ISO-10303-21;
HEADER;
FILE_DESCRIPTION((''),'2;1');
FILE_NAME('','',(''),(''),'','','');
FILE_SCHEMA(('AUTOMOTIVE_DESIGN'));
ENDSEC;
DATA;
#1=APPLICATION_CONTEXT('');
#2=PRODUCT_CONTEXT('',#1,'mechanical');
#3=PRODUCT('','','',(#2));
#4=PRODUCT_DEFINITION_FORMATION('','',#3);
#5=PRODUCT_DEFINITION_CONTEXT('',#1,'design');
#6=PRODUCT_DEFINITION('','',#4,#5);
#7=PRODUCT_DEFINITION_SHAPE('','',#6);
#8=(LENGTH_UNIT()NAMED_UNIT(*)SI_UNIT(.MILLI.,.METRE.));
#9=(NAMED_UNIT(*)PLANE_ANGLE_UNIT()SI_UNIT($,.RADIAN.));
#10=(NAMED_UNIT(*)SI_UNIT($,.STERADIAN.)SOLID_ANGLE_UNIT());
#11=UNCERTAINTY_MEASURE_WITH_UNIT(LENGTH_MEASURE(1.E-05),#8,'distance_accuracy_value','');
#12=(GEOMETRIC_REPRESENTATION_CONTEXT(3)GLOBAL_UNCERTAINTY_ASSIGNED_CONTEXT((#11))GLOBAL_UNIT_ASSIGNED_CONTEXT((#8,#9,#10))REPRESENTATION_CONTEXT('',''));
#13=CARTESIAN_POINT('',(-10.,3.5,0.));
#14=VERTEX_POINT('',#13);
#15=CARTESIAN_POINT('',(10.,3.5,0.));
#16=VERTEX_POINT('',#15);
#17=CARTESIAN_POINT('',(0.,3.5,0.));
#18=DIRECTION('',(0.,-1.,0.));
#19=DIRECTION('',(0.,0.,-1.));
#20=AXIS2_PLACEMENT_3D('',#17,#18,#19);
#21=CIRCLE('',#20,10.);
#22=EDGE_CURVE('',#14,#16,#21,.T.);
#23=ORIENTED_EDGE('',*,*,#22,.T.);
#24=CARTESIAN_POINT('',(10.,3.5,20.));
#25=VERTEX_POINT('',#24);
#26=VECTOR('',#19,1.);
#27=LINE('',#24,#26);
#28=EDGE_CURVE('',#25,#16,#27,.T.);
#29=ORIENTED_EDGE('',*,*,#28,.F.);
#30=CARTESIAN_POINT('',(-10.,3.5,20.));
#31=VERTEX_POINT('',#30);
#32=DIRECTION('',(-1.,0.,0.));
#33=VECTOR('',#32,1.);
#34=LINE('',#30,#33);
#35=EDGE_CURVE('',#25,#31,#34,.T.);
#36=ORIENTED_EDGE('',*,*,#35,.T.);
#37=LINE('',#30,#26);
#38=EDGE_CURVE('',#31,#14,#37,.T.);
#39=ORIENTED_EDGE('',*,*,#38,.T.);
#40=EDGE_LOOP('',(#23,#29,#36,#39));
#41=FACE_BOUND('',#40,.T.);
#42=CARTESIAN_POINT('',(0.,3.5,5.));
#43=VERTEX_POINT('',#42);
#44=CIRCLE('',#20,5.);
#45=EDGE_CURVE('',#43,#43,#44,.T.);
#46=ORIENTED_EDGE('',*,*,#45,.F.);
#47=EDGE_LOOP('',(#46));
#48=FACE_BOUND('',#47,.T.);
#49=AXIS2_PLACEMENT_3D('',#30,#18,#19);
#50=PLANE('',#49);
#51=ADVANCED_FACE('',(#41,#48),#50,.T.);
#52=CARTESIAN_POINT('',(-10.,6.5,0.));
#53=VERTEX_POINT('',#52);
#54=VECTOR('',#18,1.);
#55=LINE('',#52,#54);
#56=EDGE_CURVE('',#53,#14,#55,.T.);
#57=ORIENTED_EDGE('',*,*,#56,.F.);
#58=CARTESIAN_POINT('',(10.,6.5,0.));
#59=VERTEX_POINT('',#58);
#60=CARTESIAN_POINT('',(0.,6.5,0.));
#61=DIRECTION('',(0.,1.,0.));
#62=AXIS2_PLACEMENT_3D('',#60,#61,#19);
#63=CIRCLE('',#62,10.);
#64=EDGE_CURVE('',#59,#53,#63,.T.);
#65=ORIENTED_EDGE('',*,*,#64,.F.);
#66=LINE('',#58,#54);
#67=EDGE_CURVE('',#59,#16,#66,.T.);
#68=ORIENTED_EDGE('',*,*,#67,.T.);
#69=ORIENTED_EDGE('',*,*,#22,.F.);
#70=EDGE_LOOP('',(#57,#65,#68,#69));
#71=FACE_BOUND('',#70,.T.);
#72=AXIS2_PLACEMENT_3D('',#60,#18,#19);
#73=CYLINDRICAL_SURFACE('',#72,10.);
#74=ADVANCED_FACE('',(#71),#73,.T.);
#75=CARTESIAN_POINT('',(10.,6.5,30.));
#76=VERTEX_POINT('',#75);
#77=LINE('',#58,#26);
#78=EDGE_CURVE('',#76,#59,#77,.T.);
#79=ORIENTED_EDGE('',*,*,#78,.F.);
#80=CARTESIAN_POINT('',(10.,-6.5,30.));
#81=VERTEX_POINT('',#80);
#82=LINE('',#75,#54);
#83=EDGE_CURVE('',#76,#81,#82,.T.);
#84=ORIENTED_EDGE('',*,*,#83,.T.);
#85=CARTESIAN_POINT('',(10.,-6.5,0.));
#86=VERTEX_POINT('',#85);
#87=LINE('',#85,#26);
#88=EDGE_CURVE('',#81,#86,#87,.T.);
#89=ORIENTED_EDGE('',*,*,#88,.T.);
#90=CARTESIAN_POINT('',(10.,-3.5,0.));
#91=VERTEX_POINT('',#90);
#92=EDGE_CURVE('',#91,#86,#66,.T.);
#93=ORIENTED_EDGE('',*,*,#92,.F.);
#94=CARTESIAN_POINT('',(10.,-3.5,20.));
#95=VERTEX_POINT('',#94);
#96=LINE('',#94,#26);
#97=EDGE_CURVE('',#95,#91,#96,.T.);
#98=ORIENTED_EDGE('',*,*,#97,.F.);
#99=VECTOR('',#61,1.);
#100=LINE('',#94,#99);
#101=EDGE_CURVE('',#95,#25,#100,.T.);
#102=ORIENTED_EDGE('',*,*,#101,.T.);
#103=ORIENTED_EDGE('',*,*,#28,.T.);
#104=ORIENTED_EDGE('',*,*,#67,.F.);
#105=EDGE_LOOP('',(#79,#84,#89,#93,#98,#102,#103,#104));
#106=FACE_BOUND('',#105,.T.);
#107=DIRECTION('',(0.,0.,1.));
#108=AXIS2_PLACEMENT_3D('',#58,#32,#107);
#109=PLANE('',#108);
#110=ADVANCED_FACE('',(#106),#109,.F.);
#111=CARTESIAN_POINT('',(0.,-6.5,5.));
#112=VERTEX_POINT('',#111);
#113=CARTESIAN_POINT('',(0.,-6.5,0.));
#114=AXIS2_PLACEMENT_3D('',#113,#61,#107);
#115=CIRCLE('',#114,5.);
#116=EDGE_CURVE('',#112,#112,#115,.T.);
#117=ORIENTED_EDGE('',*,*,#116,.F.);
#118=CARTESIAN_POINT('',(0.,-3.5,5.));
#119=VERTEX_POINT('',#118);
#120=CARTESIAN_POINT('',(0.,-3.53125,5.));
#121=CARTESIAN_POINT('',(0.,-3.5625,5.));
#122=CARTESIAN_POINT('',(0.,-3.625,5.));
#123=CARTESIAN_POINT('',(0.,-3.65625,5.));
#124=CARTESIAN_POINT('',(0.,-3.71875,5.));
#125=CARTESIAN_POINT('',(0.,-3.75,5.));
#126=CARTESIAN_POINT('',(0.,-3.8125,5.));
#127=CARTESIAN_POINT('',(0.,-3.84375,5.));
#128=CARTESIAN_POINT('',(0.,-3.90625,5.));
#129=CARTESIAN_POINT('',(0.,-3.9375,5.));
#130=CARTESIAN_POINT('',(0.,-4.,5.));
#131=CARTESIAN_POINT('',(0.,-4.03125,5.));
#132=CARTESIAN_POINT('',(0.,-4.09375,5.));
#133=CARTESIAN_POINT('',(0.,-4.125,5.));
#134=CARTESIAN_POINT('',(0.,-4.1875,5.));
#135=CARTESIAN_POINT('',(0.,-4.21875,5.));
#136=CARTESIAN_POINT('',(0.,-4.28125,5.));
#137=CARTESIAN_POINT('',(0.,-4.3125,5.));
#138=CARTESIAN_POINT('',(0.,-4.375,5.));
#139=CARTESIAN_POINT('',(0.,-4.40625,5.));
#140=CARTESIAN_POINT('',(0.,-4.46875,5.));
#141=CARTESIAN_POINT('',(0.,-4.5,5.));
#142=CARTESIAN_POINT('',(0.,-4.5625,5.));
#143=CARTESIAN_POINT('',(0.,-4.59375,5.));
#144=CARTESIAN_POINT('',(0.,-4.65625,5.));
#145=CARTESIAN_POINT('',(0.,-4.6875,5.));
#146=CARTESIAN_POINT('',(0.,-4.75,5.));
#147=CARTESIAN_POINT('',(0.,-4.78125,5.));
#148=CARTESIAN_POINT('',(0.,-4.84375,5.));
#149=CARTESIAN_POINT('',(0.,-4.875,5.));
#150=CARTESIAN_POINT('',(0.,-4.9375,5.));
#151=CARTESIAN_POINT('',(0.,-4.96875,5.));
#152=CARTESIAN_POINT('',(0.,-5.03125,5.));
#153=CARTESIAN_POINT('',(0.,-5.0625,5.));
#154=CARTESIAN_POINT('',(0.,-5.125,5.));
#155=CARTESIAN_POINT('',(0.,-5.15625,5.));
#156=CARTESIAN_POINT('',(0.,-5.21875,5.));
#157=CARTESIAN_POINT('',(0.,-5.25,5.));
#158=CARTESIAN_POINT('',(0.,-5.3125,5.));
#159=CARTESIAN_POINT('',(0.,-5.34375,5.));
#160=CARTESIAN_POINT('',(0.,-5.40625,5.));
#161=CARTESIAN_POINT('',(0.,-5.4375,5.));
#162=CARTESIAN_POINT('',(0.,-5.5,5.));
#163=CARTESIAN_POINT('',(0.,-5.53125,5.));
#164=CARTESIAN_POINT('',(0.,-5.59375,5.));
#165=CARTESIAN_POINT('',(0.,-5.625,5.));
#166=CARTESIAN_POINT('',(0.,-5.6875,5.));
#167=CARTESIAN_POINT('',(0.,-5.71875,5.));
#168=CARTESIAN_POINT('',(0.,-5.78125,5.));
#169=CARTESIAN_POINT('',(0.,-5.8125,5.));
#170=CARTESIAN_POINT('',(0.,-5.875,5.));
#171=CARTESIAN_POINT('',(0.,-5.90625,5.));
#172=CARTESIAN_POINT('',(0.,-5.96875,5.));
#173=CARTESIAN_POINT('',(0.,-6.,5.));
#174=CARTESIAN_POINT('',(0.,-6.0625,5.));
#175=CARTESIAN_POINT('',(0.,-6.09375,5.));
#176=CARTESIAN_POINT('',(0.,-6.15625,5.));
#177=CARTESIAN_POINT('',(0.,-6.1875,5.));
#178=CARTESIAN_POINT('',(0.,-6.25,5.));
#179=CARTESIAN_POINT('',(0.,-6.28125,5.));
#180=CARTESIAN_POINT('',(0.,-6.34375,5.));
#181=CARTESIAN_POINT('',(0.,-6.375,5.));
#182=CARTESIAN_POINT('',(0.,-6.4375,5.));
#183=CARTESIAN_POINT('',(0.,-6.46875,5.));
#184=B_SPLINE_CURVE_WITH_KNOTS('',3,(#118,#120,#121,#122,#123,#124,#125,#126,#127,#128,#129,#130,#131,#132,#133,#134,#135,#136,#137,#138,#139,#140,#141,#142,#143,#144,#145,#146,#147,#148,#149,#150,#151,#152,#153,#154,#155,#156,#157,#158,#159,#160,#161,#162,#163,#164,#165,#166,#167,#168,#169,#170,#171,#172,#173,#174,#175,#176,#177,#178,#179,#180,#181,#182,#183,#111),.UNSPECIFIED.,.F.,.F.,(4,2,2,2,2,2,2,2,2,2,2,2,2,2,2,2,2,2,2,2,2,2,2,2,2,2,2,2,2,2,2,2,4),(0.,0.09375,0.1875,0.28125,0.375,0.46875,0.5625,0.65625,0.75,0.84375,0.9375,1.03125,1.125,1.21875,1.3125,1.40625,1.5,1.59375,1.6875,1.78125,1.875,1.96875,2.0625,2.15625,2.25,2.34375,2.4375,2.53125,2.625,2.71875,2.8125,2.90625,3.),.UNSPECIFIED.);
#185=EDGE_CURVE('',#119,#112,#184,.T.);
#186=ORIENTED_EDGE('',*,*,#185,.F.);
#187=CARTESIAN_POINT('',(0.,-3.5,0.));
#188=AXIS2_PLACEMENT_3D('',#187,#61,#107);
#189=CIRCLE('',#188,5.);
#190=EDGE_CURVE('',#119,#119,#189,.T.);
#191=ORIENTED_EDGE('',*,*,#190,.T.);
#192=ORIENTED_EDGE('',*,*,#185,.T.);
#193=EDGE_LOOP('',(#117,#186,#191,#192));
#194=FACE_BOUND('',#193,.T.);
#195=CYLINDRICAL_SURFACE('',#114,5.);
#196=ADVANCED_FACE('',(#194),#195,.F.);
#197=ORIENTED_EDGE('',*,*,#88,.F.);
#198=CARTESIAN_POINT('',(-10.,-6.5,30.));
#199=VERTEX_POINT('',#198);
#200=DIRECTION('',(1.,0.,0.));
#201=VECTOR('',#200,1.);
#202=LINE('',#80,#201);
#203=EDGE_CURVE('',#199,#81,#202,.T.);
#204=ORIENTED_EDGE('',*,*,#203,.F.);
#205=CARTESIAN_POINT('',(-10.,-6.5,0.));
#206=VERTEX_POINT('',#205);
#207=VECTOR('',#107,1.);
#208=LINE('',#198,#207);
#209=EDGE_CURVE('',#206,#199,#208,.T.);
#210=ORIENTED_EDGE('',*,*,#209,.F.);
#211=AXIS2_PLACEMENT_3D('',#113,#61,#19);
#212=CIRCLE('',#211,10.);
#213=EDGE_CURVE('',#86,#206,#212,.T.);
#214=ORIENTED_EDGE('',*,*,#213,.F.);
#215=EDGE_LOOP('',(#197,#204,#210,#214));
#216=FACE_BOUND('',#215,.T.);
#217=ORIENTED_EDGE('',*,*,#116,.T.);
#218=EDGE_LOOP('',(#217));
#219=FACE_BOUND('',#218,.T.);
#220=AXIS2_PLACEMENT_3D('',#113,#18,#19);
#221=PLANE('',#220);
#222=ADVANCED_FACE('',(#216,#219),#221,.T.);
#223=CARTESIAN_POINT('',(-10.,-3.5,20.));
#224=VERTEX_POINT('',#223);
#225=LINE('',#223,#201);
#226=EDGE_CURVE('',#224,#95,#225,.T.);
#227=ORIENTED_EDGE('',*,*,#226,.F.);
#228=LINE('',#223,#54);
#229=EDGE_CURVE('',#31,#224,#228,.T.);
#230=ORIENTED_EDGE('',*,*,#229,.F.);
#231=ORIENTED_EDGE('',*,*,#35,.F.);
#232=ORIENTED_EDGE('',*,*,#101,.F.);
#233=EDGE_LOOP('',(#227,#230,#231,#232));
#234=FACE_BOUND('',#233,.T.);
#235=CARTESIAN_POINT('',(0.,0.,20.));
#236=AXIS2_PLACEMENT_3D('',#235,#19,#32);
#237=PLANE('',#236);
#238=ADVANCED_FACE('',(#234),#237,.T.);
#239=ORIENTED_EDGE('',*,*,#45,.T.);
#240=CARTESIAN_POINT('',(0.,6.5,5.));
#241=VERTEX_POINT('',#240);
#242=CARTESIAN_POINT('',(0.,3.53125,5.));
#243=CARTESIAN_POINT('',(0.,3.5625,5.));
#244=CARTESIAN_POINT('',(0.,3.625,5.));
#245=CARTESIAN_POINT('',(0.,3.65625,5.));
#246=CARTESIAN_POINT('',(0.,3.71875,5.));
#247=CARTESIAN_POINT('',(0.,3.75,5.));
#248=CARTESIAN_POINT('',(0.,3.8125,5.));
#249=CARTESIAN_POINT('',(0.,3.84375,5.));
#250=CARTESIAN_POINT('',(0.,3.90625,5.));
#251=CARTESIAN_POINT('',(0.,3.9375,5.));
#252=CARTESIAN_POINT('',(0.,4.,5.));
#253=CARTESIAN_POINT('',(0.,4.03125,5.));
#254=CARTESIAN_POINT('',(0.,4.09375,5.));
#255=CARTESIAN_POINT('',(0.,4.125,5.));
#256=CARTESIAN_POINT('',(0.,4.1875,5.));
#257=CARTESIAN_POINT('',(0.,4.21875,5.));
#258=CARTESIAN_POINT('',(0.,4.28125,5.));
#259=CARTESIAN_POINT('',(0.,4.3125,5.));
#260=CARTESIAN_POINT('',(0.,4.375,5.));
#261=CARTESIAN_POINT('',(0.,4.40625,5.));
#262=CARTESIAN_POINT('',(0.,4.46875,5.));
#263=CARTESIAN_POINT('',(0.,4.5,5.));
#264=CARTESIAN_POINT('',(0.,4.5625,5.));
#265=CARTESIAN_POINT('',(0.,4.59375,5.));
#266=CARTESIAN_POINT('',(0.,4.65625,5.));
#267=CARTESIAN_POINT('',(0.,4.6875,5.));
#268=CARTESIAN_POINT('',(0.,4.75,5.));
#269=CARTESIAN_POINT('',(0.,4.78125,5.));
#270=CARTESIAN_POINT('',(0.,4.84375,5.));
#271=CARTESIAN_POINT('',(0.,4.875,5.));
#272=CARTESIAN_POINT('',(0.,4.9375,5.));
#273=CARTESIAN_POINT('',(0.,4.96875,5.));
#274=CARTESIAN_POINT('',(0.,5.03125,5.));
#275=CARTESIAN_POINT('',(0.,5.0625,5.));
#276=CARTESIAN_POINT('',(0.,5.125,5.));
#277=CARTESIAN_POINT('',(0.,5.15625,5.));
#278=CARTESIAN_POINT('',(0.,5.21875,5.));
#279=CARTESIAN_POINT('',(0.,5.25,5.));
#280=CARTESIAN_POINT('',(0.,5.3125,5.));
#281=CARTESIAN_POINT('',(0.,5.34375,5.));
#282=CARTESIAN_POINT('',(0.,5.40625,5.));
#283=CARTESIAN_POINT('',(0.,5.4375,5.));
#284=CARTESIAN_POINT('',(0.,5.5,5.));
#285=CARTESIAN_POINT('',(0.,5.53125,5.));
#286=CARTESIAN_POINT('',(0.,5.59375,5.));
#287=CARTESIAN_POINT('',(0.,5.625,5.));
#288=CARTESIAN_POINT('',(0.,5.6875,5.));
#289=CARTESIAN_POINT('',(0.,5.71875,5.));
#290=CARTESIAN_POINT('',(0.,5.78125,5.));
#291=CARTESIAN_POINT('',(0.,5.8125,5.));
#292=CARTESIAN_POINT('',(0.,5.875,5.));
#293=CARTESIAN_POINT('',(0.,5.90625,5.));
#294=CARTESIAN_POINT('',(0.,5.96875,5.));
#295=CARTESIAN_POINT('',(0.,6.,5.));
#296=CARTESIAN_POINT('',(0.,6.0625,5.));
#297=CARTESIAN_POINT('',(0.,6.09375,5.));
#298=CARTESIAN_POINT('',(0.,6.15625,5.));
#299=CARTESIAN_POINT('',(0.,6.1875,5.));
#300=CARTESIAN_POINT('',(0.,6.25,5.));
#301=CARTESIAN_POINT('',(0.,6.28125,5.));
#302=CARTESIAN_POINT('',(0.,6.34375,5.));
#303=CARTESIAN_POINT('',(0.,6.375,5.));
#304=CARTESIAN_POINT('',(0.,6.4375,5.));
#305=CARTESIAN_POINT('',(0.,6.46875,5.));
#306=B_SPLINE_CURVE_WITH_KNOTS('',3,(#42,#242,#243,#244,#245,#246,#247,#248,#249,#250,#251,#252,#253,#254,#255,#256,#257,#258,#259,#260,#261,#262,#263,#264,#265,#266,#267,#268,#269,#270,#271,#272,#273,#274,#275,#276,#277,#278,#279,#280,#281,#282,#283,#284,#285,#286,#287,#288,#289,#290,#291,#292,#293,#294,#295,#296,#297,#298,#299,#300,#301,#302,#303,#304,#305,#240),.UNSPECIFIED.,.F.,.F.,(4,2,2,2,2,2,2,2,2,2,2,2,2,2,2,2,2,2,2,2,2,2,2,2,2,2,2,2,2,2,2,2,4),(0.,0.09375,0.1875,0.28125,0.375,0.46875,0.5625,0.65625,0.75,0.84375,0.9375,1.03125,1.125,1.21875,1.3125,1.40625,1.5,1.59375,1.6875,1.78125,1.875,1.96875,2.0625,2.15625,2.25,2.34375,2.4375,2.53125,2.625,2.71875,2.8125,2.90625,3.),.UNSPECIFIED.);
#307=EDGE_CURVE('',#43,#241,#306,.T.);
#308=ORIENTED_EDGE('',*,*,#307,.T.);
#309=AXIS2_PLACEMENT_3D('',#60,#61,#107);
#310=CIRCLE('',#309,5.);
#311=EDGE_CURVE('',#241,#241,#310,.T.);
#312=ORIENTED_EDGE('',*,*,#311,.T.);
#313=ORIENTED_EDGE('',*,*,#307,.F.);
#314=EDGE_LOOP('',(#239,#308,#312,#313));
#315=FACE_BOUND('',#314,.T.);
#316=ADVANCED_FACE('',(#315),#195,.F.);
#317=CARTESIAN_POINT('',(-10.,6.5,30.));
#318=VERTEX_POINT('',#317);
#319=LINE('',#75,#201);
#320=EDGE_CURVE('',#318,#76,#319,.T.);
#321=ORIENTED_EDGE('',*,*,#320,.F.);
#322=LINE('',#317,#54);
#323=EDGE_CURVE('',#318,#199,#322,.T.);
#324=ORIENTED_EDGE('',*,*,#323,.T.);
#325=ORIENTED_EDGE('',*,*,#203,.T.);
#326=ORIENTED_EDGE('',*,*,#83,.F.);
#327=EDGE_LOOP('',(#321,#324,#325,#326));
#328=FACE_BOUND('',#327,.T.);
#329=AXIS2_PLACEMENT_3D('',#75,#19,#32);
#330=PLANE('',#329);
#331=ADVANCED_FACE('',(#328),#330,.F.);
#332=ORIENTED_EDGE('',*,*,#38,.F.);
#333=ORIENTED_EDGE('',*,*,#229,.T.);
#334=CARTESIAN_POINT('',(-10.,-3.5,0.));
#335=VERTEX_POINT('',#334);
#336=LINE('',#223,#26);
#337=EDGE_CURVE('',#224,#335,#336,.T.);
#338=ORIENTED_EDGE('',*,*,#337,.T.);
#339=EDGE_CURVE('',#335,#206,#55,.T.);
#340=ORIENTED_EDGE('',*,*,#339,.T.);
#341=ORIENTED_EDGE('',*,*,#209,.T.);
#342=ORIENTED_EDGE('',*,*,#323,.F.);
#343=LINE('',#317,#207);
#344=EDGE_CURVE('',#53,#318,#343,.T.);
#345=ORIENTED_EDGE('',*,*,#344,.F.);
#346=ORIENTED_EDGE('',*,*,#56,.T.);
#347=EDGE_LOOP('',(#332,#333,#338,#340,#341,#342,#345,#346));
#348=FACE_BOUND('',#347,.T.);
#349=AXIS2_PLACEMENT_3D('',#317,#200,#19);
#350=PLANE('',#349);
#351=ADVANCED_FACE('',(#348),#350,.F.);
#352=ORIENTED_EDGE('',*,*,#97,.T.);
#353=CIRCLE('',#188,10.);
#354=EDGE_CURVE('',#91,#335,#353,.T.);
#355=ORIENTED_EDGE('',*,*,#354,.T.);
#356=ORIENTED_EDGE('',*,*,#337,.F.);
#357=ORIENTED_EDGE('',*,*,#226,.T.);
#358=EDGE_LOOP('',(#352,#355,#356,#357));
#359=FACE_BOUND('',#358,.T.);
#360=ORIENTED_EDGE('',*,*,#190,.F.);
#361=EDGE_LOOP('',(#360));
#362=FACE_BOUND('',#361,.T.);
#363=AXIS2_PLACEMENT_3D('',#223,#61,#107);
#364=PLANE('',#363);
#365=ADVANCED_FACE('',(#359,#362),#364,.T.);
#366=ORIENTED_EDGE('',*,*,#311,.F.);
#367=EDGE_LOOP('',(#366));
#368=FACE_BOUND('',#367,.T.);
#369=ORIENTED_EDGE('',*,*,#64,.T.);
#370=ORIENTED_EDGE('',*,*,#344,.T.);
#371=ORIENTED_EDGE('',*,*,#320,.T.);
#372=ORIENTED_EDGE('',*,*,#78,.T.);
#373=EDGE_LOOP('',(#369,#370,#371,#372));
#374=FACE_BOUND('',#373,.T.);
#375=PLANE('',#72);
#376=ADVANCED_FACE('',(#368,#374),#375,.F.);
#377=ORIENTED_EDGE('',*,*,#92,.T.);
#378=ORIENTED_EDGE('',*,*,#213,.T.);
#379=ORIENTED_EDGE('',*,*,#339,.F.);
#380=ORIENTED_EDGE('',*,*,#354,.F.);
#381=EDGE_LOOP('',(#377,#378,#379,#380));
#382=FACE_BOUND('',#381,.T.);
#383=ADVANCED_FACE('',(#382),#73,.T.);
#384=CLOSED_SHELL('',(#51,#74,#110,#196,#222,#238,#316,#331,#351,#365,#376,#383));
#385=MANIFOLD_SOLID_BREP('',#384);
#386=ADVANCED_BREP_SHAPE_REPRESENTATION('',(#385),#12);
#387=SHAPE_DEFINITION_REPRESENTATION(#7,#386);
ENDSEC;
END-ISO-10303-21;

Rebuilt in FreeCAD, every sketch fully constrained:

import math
import FreeCAD as App
import Part
import Sketcher
Q = App.Units.Quantity

doc = App.newDocument("Part")
body = doc.addObject("PartDesign::Body", "Body")

# Sketch on XZ plane
sketch1 = body.newObject("Sketcher::SketchObject", "Sketch")
sketch1.AttachmentSupport = (doc.getObject("XZ_Plane"), [""])
sketch1.MapMode = "FlatFace"
sketch1.addGeometry(Part.LineSegment(App.Vector(-10, 0, 0), App.Vector(-10, 30, 0)), False)
sketch1.addGeometry(Part.LineSegment(App.Vector(-10, 30, 0), App.Vector(10, 30, 0)), False)
sketch1.addGeometry(Part.LineSegment(App.Vector(10, 30, 0), App.Vector(10, 0, 0)), False)
sketch1.addGeometry(Part.ArcOfCircle(Part.Circle(App.Vector(0, 0, 0), App.Vector(0, 0, 1), 10), math.radians(180), math.radians(360)), False)
sketch1.addConstraint(Sketcher.Constraint("Coincident", 0, 2, 1, 1))
sketch1.addConstraint(Sketcher.Constraint("Coincident", 1, 2, 2, 1))
sketch1.addConstraint(Sketcher.Constraint("Tangent", 2, 2, 3, 2))
sketch1.addConstraint(Sketcher.Constraint("Tangent", 3, 1, 0, 1))
sketch1.addConstraint(Sketcher.Constraint("Vertical", 0))
sketch1.addConstraint(Sketcher.Constraint("Horizontal", 1))
sketch1.addConstraint(Sketcher.Constraint("Vertical", 2))
sketch1.addConstraint(Sketcher.Constraint("Coincident", 3, 3, -1, 1))
sketch1.addConstraint(Sketcher.Constraint("Radius", 3, Q("10 mm")))
sketch1.addConstraint(Sketcher.Constraint("DistanceY", 0, 1, 0, 2, Q("30 mm")))
pad1 = body.newObject("PartDesign::Pad", "Pad")
pad1.Profile = sketch1
pad1.Length = 13
pad1.Midplane = True

# Sketch on XY plane
sketch2 = body.newObject("Sketcher::SketchObject", "Sketch001")
sketch2.AttachmentSupport = (doc.getObject("XY_Plane"), [""])
sketch2.MapMode = "FlatFace"
sketch2.addGeometry(Part.LineSegment(App.Vector(-10, 4, 0), App.Vector(-10, -4, 0)), False)
sketch2.addGeometry(Part.LineSegment(App.Vector(-10, -4, 0), App.Vector(10, -4, 0)), False)
sketch2.addGeometry(Part.LineSegment(App.Vector(10, -4, 0), App.Vector(10, 4, 0)), False)
sketch2.addGeometry(Part.LineSegment(App.Vector(10, 4, 0), App.Vector(-10, 4, 0)), False)
sketch2.addConstraint(Sketcher.Constraint("Coincident", 0, 2, 1, 1))
sketch2.addConstraint(Sketcher.Constraint("Coincident", 1, 2, 2, 1))
sketch2.addConstraint(Sketcher.Constraint("Coincident", 2, 2, 3, 1))
sketch2.addConstraint(Sketcher.Constraint("Coincident", 3, 2, 0, 1))
sketch2.addConstraint(Sketcher.Constraint("Vertical", 0))
sketch2.addConstraint(Sketcher.Constraint("Horizontal", 1))
sketch2.addConstraint(Sketcher.Constraint("Vertical", 2))
sketch2.addConstraint(Sketcher.Constraint("Horizontal", 3))
sketch2.addConstraint(Sketcher.Constraint("Symmetric", 0, 2, 2, 2, -1, 1))
sketch2.addConstraint(Sketcher.Constraint("DistanceX", 1, 1, 1, 2, Q("20 mm")))
sketch2.addConstraint(Sketcher.Constraint("DistanceY", 0, 2, 0, 1, Q("7 mm")))
pocket1 = body.newObject("PartDesign::Pocket", "Pocket")
pocket1.Profile = sketch2
pocket1.Type = "TwoLengths"
pocket1.Length = 20
pocket1.Length2 = 33.283897
pocket1.Reversed = True

# Sketch on XZ plane
sketch3 = body.newObject("Sketcher::SketchObject", "Sketch002")
sketch3.AttachmentSupport = (doc.getObject("XZ_Plane"), [""])
sketch3.MapMode = "FlatFace"
sketch3.AttachmentOffset = App.Placement(App.Vector(0, 0, -6.5), App.Rotation())
sketch3.addGeometry(Part.Circle(App.Vector(0, 0, 0), App.Vector(0, 0, 1), 5), False)
sketch3.addConstraint(Sketcher.Constraint("Coincident", 0, 3, -1, 1))
sketch3.addConstraint(Sketcher.Constraint("Diameter", 0, Q("10 mm")))
pocket2 = body.newObject("PartDesign::Pocket", "Pocket001")
pocket2.Profile = sketch3
pocket2.Type = "ThroughAll"
pocket2.Reversed = True

doc.recompute()
